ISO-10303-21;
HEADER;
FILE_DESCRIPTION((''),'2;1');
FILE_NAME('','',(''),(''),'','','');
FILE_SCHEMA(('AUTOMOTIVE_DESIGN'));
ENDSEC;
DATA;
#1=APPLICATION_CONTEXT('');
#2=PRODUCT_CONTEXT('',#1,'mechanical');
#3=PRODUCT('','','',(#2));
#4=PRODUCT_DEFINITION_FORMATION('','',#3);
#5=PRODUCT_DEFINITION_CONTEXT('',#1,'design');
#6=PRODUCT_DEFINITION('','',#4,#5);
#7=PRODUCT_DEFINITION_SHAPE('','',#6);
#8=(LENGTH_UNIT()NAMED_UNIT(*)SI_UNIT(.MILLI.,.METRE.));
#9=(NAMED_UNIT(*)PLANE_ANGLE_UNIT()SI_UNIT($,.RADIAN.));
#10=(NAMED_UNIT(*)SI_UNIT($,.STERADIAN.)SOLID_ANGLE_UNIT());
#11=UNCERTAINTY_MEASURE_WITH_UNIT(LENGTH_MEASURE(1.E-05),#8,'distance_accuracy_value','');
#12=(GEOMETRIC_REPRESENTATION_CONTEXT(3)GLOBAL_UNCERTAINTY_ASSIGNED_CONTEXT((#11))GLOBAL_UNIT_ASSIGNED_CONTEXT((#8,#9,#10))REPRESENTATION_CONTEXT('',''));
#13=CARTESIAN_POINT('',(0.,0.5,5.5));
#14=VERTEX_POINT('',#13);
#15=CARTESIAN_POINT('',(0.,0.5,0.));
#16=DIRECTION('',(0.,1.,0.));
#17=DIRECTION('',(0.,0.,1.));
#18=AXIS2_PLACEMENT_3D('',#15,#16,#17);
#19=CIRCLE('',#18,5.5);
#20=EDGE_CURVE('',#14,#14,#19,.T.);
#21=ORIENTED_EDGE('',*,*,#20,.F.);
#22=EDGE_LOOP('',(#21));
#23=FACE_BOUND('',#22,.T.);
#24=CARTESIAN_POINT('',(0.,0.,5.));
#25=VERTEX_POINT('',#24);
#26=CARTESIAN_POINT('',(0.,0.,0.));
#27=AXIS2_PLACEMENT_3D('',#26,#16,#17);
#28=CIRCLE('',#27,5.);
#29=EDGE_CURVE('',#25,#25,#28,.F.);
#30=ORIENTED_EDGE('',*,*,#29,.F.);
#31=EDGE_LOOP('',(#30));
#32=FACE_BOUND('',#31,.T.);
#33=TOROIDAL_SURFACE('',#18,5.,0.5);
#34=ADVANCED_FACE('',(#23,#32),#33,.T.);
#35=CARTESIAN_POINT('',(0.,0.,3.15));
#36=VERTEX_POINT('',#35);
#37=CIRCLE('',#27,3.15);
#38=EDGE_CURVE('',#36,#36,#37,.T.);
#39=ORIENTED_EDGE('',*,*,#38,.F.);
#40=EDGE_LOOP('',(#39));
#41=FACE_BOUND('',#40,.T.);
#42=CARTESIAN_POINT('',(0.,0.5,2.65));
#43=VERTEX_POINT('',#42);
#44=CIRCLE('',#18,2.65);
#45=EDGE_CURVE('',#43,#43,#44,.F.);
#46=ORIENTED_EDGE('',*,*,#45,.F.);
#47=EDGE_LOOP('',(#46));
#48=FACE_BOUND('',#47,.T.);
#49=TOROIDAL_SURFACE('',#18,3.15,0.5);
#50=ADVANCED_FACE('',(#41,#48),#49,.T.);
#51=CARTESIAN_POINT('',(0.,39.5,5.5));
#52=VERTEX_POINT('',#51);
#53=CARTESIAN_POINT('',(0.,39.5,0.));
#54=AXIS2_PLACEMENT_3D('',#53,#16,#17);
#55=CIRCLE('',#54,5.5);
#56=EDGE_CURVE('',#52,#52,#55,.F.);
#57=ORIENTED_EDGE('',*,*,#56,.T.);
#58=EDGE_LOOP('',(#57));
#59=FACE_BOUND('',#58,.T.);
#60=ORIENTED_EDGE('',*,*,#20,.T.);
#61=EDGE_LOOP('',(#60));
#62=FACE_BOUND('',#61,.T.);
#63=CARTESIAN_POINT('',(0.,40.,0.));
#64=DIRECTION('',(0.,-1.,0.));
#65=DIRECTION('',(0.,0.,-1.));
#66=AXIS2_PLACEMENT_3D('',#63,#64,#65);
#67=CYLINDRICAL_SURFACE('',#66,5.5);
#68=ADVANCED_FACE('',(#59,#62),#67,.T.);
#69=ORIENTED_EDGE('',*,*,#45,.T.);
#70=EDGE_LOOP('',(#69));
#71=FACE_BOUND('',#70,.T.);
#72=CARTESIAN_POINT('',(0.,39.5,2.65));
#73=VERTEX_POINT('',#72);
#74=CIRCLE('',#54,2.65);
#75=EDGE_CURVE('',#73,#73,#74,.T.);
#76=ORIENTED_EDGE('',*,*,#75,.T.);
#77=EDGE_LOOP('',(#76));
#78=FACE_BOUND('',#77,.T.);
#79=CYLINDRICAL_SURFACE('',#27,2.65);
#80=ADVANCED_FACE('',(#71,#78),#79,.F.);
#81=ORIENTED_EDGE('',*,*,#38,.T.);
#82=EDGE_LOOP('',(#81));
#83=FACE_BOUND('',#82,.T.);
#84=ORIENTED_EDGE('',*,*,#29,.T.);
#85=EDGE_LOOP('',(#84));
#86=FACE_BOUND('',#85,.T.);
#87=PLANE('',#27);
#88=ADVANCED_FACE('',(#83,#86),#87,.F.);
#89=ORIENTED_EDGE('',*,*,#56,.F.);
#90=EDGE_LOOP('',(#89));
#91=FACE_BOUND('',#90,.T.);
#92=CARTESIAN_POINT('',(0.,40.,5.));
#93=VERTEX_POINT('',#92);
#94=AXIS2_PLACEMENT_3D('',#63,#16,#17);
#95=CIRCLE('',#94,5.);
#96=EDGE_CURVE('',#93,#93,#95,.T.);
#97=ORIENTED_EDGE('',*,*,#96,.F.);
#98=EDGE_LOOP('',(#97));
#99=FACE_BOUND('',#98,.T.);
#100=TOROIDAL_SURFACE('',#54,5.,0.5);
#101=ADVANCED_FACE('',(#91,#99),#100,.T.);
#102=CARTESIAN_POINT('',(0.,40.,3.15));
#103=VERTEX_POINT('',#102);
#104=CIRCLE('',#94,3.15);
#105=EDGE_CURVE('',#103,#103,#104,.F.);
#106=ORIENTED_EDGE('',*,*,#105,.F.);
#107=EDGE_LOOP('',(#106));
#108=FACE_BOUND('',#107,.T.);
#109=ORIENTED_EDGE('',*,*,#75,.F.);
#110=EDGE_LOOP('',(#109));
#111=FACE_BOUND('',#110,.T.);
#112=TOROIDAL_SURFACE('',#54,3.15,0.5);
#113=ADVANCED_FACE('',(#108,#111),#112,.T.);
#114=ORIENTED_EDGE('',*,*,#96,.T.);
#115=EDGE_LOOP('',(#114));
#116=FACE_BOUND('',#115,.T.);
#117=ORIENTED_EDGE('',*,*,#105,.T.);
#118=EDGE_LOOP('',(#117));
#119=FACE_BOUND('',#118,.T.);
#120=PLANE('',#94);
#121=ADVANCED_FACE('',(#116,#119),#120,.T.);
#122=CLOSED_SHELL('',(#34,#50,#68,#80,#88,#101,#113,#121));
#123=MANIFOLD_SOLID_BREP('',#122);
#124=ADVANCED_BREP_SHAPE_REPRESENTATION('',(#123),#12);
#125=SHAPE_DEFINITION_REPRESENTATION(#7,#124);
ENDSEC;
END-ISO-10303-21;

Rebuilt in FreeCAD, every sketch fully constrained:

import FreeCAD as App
import Part
import Sketcher

V = App.Vector


def edges_at(feature, points):
    """Names of the edges that pass closest to the given points."""
    edges = feature.Shape.Edges
    near = lambda p: min(range(len(edges)), key=lambda i: edges[i].distToShape(Part.Vertex(*p))[0])
    return sorted({f"Edge{near(p) + 1}" for p in points})

doc = App.newDocument("Part")
body = doc.addObject("PartDesign::Body", "Body")

# Sketch on XZ plane
sketch1 = body.newObject("Sketcher::SketchObject", "Sketch")
sketch1.AttachmentSupport = (doc.getObject("XZ_Plane"), [""])
sketch1.MapMode = "FlatFace"
sketch1.addGeometry(Part.Circle(V(0, 0, 0), V(0, 0, 1), 6), False)
sketch1.addConstraint([
    Sketcher.Constraint("Coincident", 0, 3, -1, 1),
    Sketcher.Constraint("Diameter", 0, 11.0),
])
pad1 = body.newObject("PartDesign::Pad", "Pad")
pad1.Profile = sketch1
pad1.Length = 40
pad1.Reversed = True

# Sketch on XZ plane
sketch2 = body.newObject("Sketcher::SketchObject", "Sketch001")
sketch2.AttachmentSupport = (doc.getObject("XZ_Plane"), [""])
sketch2.MapMode = "FlatFace"
sketch2.AttachmentOffset = App.Placement(V(0, 0, -40), App.Rotation())
sketch2.addGeometry(Part.Circle(V(0, 0, 0), V(0, 0, 1), 2.6), False)
sketch2.addConstraint([
    Sketcher.Constraint("Coincident", 0, 3, -1, 1),
    Sketcher.Constraint("Diameter", 0, 5.3),
])
pocket1 = body.newObject("PartDesign::Pocket", "Pocket")
pocket1.Profile = sketch2
pocket1.Length = 40
pocket1.Reversed = True
doc.recompute()

fillet = body.newObject("PartDesign::Fillet", "Fillet")
fillet.Base = (pocket1, edges_at(pocket1, [(0, 0, -5.5), (0, 40, -5.5)]))
fillet.Radius = 0.5
doc.recompute()

fillet2 = body.newObject("PartDesign::Fillet", "Fillet001")
fillet2.Base = (fillet, edges_at(fillet, [(0, 0, -2.65), (0, 40, -2.65)]))
fillet2.Radius = 0.5

doc.recompute()
